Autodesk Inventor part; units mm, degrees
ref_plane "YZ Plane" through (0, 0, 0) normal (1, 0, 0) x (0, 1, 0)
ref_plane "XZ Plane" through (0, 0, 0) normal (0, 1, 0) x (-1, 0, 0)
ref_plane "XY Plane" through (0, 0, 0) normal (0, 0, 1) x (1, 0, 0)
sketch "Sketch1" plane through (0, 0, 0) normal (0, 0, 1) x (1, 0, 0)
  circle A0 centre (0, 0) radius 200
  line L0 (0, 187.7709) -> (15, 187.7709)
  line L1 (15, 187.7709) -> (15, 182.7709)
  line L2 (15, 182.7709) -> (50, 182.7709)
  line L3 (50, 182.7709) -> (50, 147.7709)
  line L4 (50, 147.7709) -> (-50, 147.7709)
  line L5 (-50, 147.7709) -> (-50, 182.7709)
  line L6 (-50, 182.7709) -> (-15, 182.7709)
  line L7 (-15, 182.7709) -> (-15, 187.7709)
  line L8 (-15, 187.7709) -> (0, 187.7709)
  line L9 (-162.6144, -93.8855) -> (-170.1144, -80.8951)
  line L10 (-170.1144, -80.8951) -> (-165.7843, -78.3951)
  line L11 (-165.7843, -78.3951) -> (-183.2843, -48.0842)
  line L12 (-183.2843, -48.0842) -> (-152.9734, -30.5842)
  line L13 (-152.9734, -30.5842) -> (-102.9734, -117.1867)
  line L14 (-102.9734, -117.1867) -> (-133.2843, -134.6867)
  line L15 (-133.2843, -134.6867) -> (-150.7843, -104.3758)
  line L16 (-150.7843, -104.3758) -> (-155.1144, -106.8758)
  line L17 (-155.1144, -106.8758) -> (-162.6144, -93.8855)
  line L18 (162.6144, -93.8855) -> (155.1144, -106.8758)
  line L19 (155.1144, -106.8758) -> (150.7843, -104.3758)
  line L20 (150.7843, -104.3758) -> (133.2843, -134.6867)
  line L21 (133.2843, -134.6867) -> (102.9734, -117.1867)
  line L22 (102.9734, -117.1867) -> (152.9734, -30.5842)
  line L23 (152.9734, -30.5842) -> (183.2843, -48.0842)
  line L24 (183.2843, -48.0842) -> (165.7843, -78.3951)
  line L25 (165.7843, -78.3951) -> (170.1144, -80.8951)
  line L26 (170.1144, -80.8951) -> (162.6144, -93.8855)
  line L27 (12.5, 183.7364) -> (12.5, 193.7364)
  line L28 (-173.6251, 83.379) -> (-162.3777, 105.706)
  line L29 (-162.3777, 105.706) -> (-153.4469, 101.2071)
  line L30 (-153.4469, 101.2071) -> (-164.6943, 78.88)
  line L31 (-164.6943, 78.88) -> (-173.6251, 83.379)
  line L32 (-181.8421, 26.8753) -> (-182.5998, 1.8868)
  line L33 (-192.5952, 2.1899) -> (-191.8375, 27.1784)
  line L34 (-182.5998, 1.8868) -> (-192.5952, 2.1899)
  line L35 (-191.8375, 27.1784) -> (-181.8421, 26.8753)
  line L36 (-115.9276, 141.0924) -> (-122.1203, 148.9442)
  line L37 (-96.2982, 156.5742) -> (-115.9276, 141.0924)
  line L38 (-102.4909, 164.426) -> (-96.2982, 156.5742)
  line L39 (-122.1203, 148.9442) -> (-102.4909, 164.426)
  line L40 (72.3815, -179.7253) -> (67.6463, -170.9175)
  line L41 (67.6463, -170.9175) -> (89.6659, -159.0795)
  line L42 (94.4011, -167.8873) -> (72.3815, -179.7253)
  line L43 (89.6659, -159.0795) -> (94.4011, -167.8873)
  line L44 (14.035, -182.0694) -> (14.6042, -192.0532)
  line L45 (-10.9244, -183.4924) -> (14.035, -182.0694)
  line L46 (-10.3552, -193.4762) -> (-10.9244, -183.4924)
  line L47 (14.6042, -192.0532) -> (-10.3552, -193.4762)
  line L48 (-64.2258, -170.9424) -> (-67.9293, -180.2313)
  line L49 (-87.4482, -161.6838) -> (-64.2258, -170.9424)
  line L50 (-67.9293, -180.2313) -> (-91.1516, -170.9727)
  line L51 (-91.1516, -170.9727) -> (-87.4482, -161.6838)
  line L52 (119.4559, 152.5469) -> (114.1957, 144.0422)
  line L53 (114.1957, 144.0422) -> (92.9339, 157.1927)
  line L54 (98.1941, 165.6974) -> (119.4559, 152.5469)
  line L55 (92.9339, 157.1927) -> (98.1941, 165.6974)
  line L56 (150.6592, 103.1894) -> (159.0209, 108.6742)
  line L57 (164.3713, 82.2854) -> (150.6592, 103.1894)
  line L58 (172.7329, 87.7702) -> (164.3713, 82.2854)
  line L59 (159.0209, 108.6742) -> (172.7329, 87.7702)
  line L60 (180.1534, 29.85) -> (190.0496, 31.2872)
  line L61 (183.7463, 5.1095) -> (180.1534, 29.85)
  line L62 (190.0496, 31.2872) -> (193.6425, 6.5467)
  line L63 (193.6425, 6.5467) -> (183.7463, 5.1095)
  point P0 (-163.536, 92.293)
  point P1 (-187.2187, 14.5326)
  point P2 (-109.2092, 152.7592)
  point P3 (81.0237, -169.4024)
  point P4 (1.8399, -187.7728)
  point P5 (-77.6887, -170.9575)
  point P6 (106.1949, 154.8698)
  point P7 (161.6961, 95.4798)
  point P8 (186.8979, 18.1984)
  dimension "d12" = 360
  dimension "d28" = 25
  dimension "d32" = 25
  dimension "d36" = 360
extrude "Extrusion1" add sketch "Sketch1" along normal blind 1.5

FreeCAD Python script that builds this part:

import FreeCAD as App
import Part
import Sketcher

V = App.Vector
Q = App.Units.Quantity


def add_polygon(sketch, points):
    """Adds a closed chain of lines whose ends are joined by coincident constraints."""
    first, n = sketch.GeometryCount, len(points)
    for a, b in zip(points, points[1:] + points[:1]):
        sketch.addGeometry(Part.LineSegment(App.Vector(*a, 0), App.Vector(*b, 0)), False)
    for i in range(n):
        sketch.addConstraint(Sketcher.Constraint("Coincident", first + i, 2, first + (i + 1) % n, 1))

doc = App.newDocument("Part")
body = doc.addObject("PartDesign::Body", "Body")

# Sketch on XY plane
sketch1 = doc.addObject("Sketcher::SketchObject", "Sketch")
body.addObject(sketch1)
sketch1.AttachmentSupport = (doc.XY_Plane, [""])
sketch1.MapMode = "FlatFace"
sketch1.addGeometry(Part.Circle(V(0, 0, 0), V(0, 0, 1), 200), False)  # 0
add_polygon(sketch1, [(-87.4, -161.7), (-64.2, -170.9), (-67.9, -180.2), (-91.2, -171)])  # lines 1-4
add_polygon(sketch1, [(-155.1, -106.9), (-162.6, -93.9), (-170.1, -80.9), (-165.8, -78.4), (-183.3, -48.1), (-153, -30.6), (-103, -117.2), (-133.3, -134.7), (-150.8, -104.4)])  # lines 5-13
add_polygon(sketch1, [(-10.9, -183.5), (14, -182.1), (14.6, -192.1), (-10.4, -193.5)])  # lines 14-17
add_polygon(sketch1, [(94.4, -167.9), (72.4, -179.7), (67.6, -170.9), (89.7, -159.1)])  # lines 18-21
add_polygon(sketch1, [(170.1, -80.9), (162.6, -93.9), (155.1, -106.9), (150.8, -104.4), (133.3, -134.7), (103, -117.2), (153, -30.6), (183.3, -48.1), (165.8, -78.4)])  # lines 22-30
add_polygon(sketch1, [(-191.8, 27.2), (-181.8, 26.9), (-182.6, 1.9), (-192.6, 2.2)])  # lines 31-34
add_polygon(sketch1, [(-164.7, 78.9), (-173.6, 83.4), (-162.4, 105.7), (-153.4, 101.2)])  # lines 35-38
add_polygon(sketch1, [(-96.3, 156.6), (-115.9, 141.1), (-122.1, 148.9), (-102.5, 164.4)])  # lines 39-42
add_polygon(sketch1, [(183.7, 5.1), (180.2, 29.9), (190, 31.3), (193.6, 6.5)])  # lines 43-46
add_polygon(sketch1, [(164.4, 82.3), (150.7, 103.2), (159, 108.7), (172.7, 87.8)])  # lines 47-50
add_polygon(sketch1, [(-15, 187.8), (15, 187.8), (15, 182.8), (50, 182.8), (50, 147.8), (-50, 147.8), (-50, 182.8), (-15, 182.8)])  # lines 51-58
add_polygon(sketch1, [(98.2, 165.7), (119.5, 152.5), (114.2, 144), (92.9, 157.2)])  # lines 59-62
sketch1.addConstraint([
    Sketcher.Constraint("Horizontal", 51),
    Sketcher.Constraint("Vertical", 52),
    Sketcher.Constraint("Horizontal", 53),
    Sketcher.Constraint("Vertical", 54),
    Sketcher.Constraint("Horizontal", 55),
    Sketcher.Constraint("Vertical", 56),
    Sketcher.Constraint("Horizontal", 57),
    Sketcher.Constraint("Vertical", 58),
    Sketcher.Constraint("Coincident", 0, 3, -1, 1),
    Sketcher.Constraint("Symmetric", 5, 2, 22, 2, -2),
    Sketcher.Constraint("Symmetric", 13, 2, 23, 2, -2),
    Sketcher.Constraint("Symmetric", 12, 2, 24, 2, -2),
    Sketcher.Constraint("Symmetric", 11, 2, 25, 2, -2),
    Sketcher.Constraint("Symmetric", 10, 2, 26, 2, -2),
    Sketcher.Constraint("Symmetric", 9, 2, 27, 2, -2),
    Sketcher.Constraint("Symmetric", 8, 2, 28, 2, -2),
    Sketcher.Constraint("Symmetric", 7, 2, 29, 2, -2),
    Sketcher.Constraint("Symmetric", 6, 2, 30, 2, -2),
    Sketcher.Constraint("Symmetric", 53, 2, 56, 2, -2),
    Sketcher.Constraint("Perpendicular", 1, 2),
    Sketcher.Constraint("Perpendicular", 2, 3),
    Sketcher.Constraint("Perpendicular", 3, 4),
    Sketcher.Constraint("Parallel", 5, 6),
    Sketcher.Constraint("Perpendicular", 6, 7),
    Sketcher.Constraint("Perpendicular", 7, 8),
    Sketcher.Constraint("Perpendicular", 8, 9),
    Sketcher.Constraint("Perpendicular", 9, 10),
    Sketcher.Constraint("Perpendicular", 10, 11),
    Sketcher.Constraint("Perpendicular", 11, 12),
    Sketcher.Constraint("Perpendicular", 12, 13),
    Sketcher.Constraint("Perpendicular", 14, 15),
    Sketcher.Constraint("Perpendicular", 15, 16),
    Sketcher.Constraint("Perpendicular", 16, 17),
    Sketcher.Constraint("Perpendicular", 18, 19),
    Sketcher.Constraint("Perpendicular", 19, 20),
    Sketcher.Constraint("Perpendicular", 20, 21),
    Sketcher.Constraint("Perpendicular", 31, 32),
    Sketcher.Constraint("Perpendicular", 32, 33),
    Sketcher.Constraint("Perpendicular", 33, 34),
    Sketcher.Constraint("Perpendicular", 35, 36),
    Sketcher.Constraint("Perpendicular", 36, 37),
    Sketcher.Constraint("Perpendicular", 37, 38),
    Sketcher.Constraint("Perpendicular", 39, 40),
    Sketcher.Constraint("Perpendicular", 40, 41),
    Sketcher.Constraint("Perpendicular", 41, 42),
    Sketcher.Constraint("Perpendicular", 43, 44),
    Sketcher.Constraint("Perpendicular", 44, 45),
    Sketcher.Constraint("Perpendicular", 45, 46),
    Sketcher.Constraint("Perpendicular", 47, 48),
    Sketcher.Constraint("Perpendicular", 48, 49),
    Sketcher.Constraint("Perpendicular", 49, 50),
    Sketcher.Constraint("Perpendicular", 59, 60),
    Sketcher.Constraint("Perpendicular", 60, 61),
    Sketcher.Constraint("Perpendicular", 61, 62),
    Sketcher.Constraint("Equal", 53, 57),
    Sketcher.Constraint("Equal", 57, 54),
    Sketcher.Constraint("Equal", 5, 6),
    Sketcher.Constraint("Equal", 8, 9),
    Sketcher.Constraint("Equal", 9, 11),
    Sketcher.Constraint("Equal", 11, 12),
    Sketcher.Constraint("Equal", 3, 14),
    Sketcher.Constraint("Equal", 4, 15),
    Sketcher.Constraint("Equal", 16, 18),
    Sketcher.Constraint("Equal", 17, 19),
    Sketcher.Constraint("Equal", 21, 31),
    Sketcher.Constraint("Equal", 20, 32),
    Sketcher.Constraint("Equal", 33, 35),
    Sketcher.Constraint("Equal", 34, 36),
    Sketcher.Constraint("Equal", 38, 39),
    Sketcher.Constraint("Equal", 37, 40),
    Sketcher.Constraint("Equal", 41, 43),
    Sketcher.Constraint("Equal", 42, 44),
    Sketcher.Constraint("Equal", 45, 47),
    Sketcher.Constraint("Equal", 46, 48),
    Sketcher.Constraint("Equal", 49, 59),
    Sketcher.Constraint("Equal", 50, 60),
    Sketcher.Constraint("Distance", 1, Q("25 mm")),
    Sketcher.Constraint("Diameter", 0, Q("400 mm")),
    Sketcher.Constraint("DistanceX", 51, 1, 51, 2, Q("30 mm")),
    Sketcher.Constraint("DistanceX", 53, 1, 53, 2, Q("35 mm")),
    Sketcher.Constraint("DistanceY", 52, 2, 52, 1, Q("5 mm")),
    Sketcher.Constraint("Angle", 5, Q("120.0002 deg")),
    Sketcher.Constraint("Distance", 2, Q("10 mm")),
    Sketcher.Constraint("Distance", 5, Q("15 mm")),
    Sketcher.Constraint("Distance", 7, Q("5 mm")),
    Sketcher.Constraint("Distance", 8, Q("35 mm")),
    Sketcher.Constraint("DistanceY", -1, 1, 33, 2, Q("2.19 mm")),
    Sketcher.Constraint("DistanceY", -1, 1, 38, 2, Q("78.88 mm")),
    Sketcher.Constraint("DistanceY", -1, 1, 43, 2, Q("29.85 mm")),
    Sketcher.Constraint("DistanceY", 6, 2, -1, 1, Q("80.895 mm")),
    Sketcher.Constraint("DistanceX", -1, 1, 14, 2, Q("14.035 mm")),
    Sketcher.Constraint("DistanceX", -1, 1, 20, 2, Q("89.666 mm")),
    Sketcher.Constraint("DistanceX", -1, 1, 21, 2, Q("94.401 mm")),
    Sketcher.Constraint("DistanceX", 31, 2, -1, 1, Q("181.842 mm")),
    Sketcher.Constraint("DistanceX", 35, 2, -1, 1, Q("173.625 mm")),
    Sketcher.Constraint("DistanceY", -1, 1, 35, 2, Q("83.379 mm")),
    Sketcher.Constraint("DistanceX", 41, 2, -1, 1, Q("102.491 mm")),
    Sketcher.Constraint("DistanceY", -1, 1, 41, 2, Q("164.426 mm")),
    Sketcher.Constraint("DistanceX", -1, 1, 48, 2, Q("159.021 mm")),
    Sketcher.Constraint("DistanceX", -1, 1, 49, 2, Q("172.733 mm")),
    Sketcher.Constraint("DistanceY", -1, 1, 51, 2, Q("187.771 mm")),
    Sketcher.Constraint("DistanceX", -1, 1, 59, 2, Q("119.456 mm")),
    Sketcher.Constraint("DistanceY", -1, 1, 59, 2, Q("152.547 mm")),
    Sketcher.Constraint("DistanceX", -1, 1, 61, 2, Q("92.934 mm")),
    Sketcher.Constraint("DistanceX", 1, 2, -1, 1, Q("64.2258 mm")),
    Sketcher.Constraint("DistanceY", 1, 2, -1, 1, Q("170.9424 mm")),
    Sketcher.Constraint("DistanceX", 2, 2, -1, 1, Q("67.9293 mm")),
    Sketcher.Constraint("DistanceX", 5, 2, -1, 1, Q("162.6144 mm")),
    Sketcher.Constraint("DistanceY", 14, 2, -1, 1, Q("182.0694 mm")),
    Sketcher.Constraint("DistanceX", -1, 1, 15, 2, Q("14.6042 mm")),
    Sketcher.Constraint("DistanceY", 18, 2, -1, 1, Q("179.7253 mm")),
    Sketcher.Constraint("DistanceY", -1, 1, 31, 2, Q("26.8753 mm")),
    Sketcher.Constraint("DistanceX", 39, 2, -1, 1, Q("115.9276 mm")),
    Sketcher.Constraint("DistanceX", -1, 1, 43, 2, Q("180.1534 mm")),
    Sketcher.Constraint("DistanceX", -1, 1, 44, 2, Q("190.0496 mm")),
    Sketcher.Constraint("DistanceY", -1, 1, 47, 2, Q("103.1894 mm")),
])
pad1 = doc.addObject("PartDesign::Pad", "Pad")
body.addObject(pad1)
pad1.Profile = sketch1
pad1.Length = 1.5

doc.recompute()
